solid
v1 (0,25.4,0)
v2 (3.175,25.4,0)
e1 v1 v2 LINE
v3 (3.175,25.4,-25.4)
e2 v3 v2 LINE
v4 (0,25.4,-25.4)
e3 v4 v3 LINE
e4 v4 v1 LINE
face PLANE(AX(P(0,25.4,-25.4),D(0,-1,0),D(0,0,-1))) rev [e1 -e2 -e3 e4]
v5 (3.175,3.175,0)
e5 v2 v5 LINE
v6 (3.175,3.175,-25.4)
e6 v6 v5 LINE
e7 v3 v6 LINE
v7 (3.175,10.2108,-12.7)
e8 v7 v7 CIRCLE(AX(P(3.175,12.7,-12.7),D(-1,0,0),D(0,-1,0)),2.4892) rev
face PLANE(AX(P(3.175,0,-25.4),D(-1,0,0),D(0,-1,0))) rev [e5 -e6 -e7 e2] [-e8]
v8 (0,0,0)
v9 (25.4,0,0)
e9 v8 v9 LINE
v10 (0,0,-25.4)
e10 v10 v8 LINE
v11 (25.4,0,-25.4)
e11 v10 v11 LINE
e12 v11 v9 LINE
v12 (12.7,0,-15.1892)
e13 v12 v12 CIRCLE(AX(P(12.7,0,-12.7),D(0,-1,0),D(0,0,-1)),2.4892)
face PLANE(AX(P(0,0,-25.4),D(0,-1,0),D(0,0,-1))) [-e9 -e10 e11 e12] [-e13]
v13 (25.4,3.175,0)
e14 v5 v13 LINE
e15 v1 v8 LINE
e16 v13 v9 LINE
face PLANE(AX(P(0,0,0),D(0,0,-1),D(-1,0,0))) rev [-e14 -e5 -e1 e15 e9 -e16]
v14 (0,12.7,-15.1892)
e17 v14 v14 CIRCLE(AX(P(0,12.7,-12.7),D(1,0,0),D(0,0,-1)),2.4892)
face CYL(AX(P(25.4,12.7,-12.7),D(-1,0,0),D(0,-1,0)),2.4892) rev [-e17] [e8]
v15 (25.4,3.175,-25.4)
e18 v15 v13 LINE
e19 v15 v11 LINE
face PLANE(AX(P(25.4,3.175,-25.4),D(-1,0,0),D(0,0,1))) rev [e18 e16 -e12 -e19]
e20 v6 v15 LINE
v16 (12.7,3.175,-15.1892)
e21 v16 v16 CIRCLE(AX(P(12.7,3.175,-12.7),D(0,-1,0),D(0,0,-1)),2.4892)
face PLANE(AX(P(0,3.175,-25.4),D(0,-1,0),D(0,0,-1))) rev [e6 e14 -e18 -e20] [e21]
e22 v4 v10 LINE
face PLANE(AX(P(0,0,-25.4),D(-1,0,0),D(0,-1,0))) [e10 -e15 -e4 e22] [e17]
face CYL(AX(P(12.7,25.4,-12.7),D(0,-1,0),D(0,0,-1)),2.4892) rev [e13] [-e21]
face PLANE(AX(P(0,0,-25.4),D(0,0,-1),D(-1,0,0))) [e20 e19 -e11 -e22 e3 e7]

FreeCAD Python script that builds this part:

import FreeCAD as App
import Part
import Sketcher
from FreeCAD import Vector
Q = App.Units.Quantity


def add_polygon(sketch, points):
    """Adds a closed chain of lines whose ends are joined by coincident constraints."""
    first, n = sketch.GeometryCount, len(points)
    for a, b in zip(points, points[1:] + points[:1]):
        sketch.addGeometry(Part.LineSegment(App.Vector(*a, 0), App.Vector(*b, 0)), False)
    for i in range(n):
        sketch.addConstraint(Sketcher.Constraint("Coincident", first + i, 2, first + (i + 1) % n, 1))

doc = App.newDocument("Part")
body = doc.addObject("PartDesign::Body", "Body")

sketch1 = body.newObject("Sketcher::SketchObject", "Sketch")
sketch1.AttachmentSupport = (doc.getObject("XY_Plane"), [""])
sketch1.MapMode = "FlatFace"
add_polygon(sketch1, [(0, 0), (25.4, 0), (25.4, 3.2), (3.2, 3.2), (3.2, 25.4), (0, 25.4)])
sketch1.addConstraint(Sketcher.Constraint("Horizontal", 0))
sketch1.addConstraint(Sketcher.Constraint("Vertical", 1))
sketch1.addConstraint(Sketcher.Constraint("Horizontal", 2))
sketch1.addConstraint(Sketcher.Constraint("Vertical", 3))
sketch1.addConstraint(Sketcher.Constraint("Horizontal", 4))
sketch1.addConstraint(Sketcher.Constraint("Vertical", 5))
sketch1.addConstraint(Sketcher.Constraint("Coincident", 5, 2, -1, 1))
sketch1.addConstraint(Sketcher.Constraint("Equal", 4, 1))
sketch1.addConstraint(Sketcher.Constraint("Equal", 2, 3))
sketch1.addConstraint(Sketcher.Constraint("DistanceX", 0, 1, 0, 2, Q("1 in")))
sketch1.addConstraint(Sketcher.Constraint("DistanceX", 2, 2, 2, 1, Q("0.875 in")))
pad1 = body.newObject("PartDesign::Pad", "Pad")
pad1.Profile = sketch1
pad1.Length = Q("1 in")
pad1.Reversed = True

sketch2 = body.newObject("Sketcher::SketchObject", "Sketch001")
sketch2.AttachmentSupport = (doc.getObject("XZ_Plane"), [""])
sketch2.MapMode = "FlatFace"
sketch2.addGeometry(Part.Circle(Vector(12.7, -12.7, 0), Vector(0, 0, 1), 2.5), False)
sketch2.addConstraint(Sketcher.Constraint("Diameter", 0, Q("0.196 in")))
sketch2.addConstraint(Sketcher.Constraint("DistanceX", -1, 1, 0, 3, Q("0.5 in")))
sketch2.addConstraint(Sketcher.Constraint("DistanceY", 0, 3, -1, 1, Q("0.5 in")))
pocket1 = body.newObject("PartDesign::Pocket", "Pocket")
pocket1.Profile = sketch2
pocket1.Type = "ThroughAll"
doc.recompute()

datumplane = body.newObject("PartDesign::Plane", "DatumPlane")
datumplane.Placement = App.Placement(Vector(0, 0, 0), App.Rotation(Vector(-0.707106781, -0.707106781, 0), Vector(0, 0, -1), Vector(0.707106781, -0.707106781, 0), "ZXY"))
mirrored = body.newObject("PartDesign::Mirrored", "Mirrored")
mirrored.Originals = [pocket1]
mirrored.MirrorPlane = (datumplane, [""])
body.Tip = mirrored

doc.recompute()
